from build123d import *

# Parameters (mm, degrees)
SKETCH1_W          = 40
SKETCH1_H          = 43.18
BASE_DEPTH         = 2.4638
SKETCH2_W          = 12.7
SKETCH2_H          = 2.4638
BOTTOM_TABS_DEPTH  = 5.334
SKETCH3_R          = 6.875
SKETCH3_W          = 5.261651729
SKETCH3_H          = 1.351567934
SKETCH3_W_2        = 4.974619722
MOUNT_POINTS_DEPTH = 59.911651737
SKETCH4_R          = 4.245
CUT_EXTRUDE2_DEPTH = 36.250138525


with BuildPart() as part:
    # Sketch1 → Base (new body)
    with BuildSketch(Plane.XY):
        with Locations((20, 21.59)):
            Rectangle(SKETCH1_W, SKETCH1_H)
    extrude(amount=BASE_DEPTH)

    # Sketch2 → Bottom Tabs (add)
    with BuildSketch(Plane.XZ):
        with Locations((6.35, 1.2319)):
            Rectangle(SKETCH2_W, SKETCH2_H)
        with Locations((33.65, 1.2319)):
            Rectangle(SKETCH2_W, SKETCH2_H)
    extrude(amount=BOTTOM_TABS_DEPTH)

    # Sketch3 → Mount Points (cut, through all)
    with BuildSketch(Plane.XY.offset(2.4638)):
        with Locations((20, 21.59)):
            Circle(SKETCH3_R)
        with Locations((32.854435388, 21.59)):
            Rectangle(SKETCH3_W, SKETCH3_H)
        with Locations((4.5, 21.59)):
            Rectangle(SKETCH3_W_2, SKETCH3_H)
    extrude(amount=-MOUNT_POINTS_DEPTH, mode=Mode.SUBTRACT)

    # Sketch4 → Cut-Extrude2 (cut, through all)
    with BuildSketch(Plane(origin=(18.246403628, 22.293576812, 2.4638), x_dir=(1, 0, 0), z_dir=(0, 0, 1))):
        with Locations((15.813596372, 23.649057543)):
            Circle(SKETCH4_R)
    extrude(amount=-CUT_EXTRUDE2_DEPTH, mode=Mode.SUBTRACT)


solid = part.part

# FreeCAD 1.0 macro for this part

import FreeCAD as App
import Part
import Sketcher

V = App.Vector
Q = App.Units.Quantity


def add_polygon(sketch, points):
    """Adds a closed chain of lines whose ends are joined by coincident constraints."""
    first, n = sketch.GeometryCount, len(points)
    for a, b in zip(points, points[1:] + points[:1]):
        sketch.addGeometry(Part.LineSegment(App.Vector(*a, 0), App.Vector(*b, 0)), False)
    for i in range(n):
        sketch.addConstraint(Sketcher.Constraint("Coincident", first + i, 2, first + (i + 1) % n, 1))

doc = App.newDocument("Part")
body = doc.addObject("PartDesign::Body", "Body")

sketch1 = doc.addObject("Sketcher::SketchObject", "Sketch")
body.addObject(sketch1)
sketch1.AttachmentSupport = (doc.XY_Plane, [""])
sketch1.MapMode = "FlatFace"
add_polygon(sketch1, [(0, 43), (0, 0), (40, 0), (40, 43)])
sketch1.addConstraint(Sketcher.Constraint("Vertical", 0))
sketch1.addConstraint(Sketcher.Constraint("Horizontal", 1))
sketch1.addConstraint(Sketcher.Constraint("Vertical", 2))
sketch1.addConstraint(Sketcher.Constraint("Horizontal", 3))
sketch1.addConstraint(Sketcher.Constraint("Coincident", 0, 2, -1, 1))
sketch1.addConstraint(Sketcher.Constraint("DistanceY", 0, 2, 0, 1, Q("1.7 in")))
sketch1.addConstraint(Sketcher.Constraint("DistanceX", 1, 1, 1, 2, Q("40 mm")))
pad1 = doc.addObject("PartDesign::Pad", "Pad")
body.addObject(pad1)
pad1.Profile = sketch1
pad1.Length = Q("0.097 in")

sketch2 = doc.addObject("Sketcher::SketchObject", "Sketch001")
body.addObject(sketch2)
sketch2.AttachmentSupport = (doc.XZ_Plane, [""])
sketch2.MapMode = "FlatFace"
add_polygon(sketch2, [(0, 2.5), (0, 0), (12.7, 0), (12.7, 2.5)])
add_polygon(sketch2, [(27.3, 2.5), (27.3, 0), (40, 0), (40, 2.5)])
sketch2.addConstraint(Sketcher.Constraint("Vertical", 0))
sketch2.addConstraint(Sketcher.Constraint("Horizontal", 1))
sketch2.addConstraint(Sketcher.Constraint("Vertical", 2))
sketch2.addConstraint(Sketcher.Constraint("Horizontal", 3))
sketch2.addConstraint(Sketcher.Constraint("Vertical", 4))
sketch2.addConstraint(Sketcher.Constraint("Horizontal", 5))
sketch2.addConstraint(Sketcher.Constraint("Vertical", 6))
sketch2.addConstraint(Sketcher.Constraint("Horizontal", 7))
sketch2.addConstraint(Sketcher.Constraint("Coincident", 0, 2, -1, 1))
sketch2.addConstraint(Sketcher.Constraint("PointOnObject", 4, 2, -1))
sketch2.addConstraint(Sketcher.Constraint("Horizontal", 3, 2, 6, 2))
sketch2.addConstraint(Sketcher.Constraint("Equal", 3, 5))
sketch2.addConstraint(Sketcher.Constraint("DistanceX", 1, 1, 1, 2, Q("0.5 in")))
sketch2.addConstraint(Sketcher.Constraint("DistanceY", 0, 2, 0, 1, Q("0.097 in")))
sketch2.addConstraint(Sketcher.Constraint("DistanceX", -1, 1, 4, 2, Q("27.3 mm")))
pad2 = doc.addObject("PartDesign::Pad", "Pad001")
body.addObject(pad2)
pad2.Profile = sketch2
pad2.Length = Q("0.21 in")

sketch3 = doc.addObject("Sketcher::SketchObject", "Sketch002")
body.addObject(sketch3)
sketch3.AttachmentSupport = (doc.XY_Plane, [""])
sketch3.MapMode = "FlatFace"
sketch3.AttachmentOffset = App.Placement(V(0, 0, 0.097 * 25.4), App.Rotation())
sketch3.addGeometry(Part.Circle(V(20, 21.6, 0), V(0, 0, 1), 6.9), False)
add_polygon(sketch3, [(30.2, 22.3), (30.2, 20.9), (35.5, 20.9), (35.5, 22.3)])
add_polygon(sketch3, [(2, 22.3), (2, 20.9), (7, 20.9), (7, 22.3)])
sketch3.addConstraint(Sketcher.Constraint("Vertical", 1))
sketch3.addConstraint(Sketcher.Constraint("Horizontal", 2))
sketch3.addConstraint(Sketcher.Constraint("Vertical", 3))
sketch3.addConstraint(Sketcher.Constraint("Horizontal", 4))
sketch3.addConstraint(Sketcher.Constraint("Vertical", 5))
sketch3.addConstraint(Sketcher.Constraint("Horizontal", 6))
sketch3.addConstraint(Sketcher.Constraint("Vertical", 7))
sketch3.addConstraint(Sketcher.Constraint("Horizontal", 8))
sketch3.addConstraint(Sketcher.Constraint("Horizontal", 2, 2, 5, 2))
sketch3.addConstraint(Sketcher.Constraint("Horizontal", 4, 2, 7, 2))
sketch3.addConstraint(Sketcher.Constraint("Diameter", 0, Q("13.75 mm")))
sketch3.addConstraint(Sketcher.Constraint("DistanceY", -1, 1, 0, 3, Q("0.85 in")))
sketch3.addConstraint(Sketcher.Constraint("DistanceX", 2, 1, 2, 2, Q("5.261652 mm")))
sketch3.addConstraint(Sketcher.Constraint("DistanceX", 6, 1, 6, 2, Q("4.97462 mm")))
sketch3.addConstraint(Sketcher.Constraint("DistanceX", -1, 1, 0, 3, Q("20 mm")))
sketch3.addConstraint(Sketcher.Constraint("DistanceX", 6, 2, 1, 2, Q("23.2363 mm")))
sketch3.addConstraint(Sketcher.Constraint("DistanceY", 1, 2, 1, 1, Q("1.351568 mm")))
sketch3.addConstraint(Sketcher.Constraint("DistanceX", -1, 1, 1, 2, Q("30.22361 mm")))
sketch3.addConstraint(Sketcher.Constraint("DistanceY", -1, 1, 1, 2, Q("20.914216 mm")))
pocket1 = doc.addObject("PartDesign::Pocket", "Pocket")
body.addObject(pocket1)
pocket1.Profile = sketch3
pocket1.Type = "ThroughAll"

sketch4 = doc.addObject("Sketcher::SketchObject", "Sketch003")
body.addObject(sketch4)
sketch4.AttachmentSupport = (doc.XY_Plane, [""])
sketch4.MapMode = "FlatFace"
sketch4.AttachmentOffset = App.Placement(V(0, 0, 0.097 * 25.4), App.Rotation())
sketch4.addGeometry(Part.Circle(V(34.1, 45.9, 0), V(0, 0, 1), 4.2), False)
sketch4.addConstraint(Sketcher.Constraint("Diameter", 0, Q("8.49 mm")))
sketch4.addConstraint(Sketcher.Constraint("DistanceX", -1, 1, 0, 3, Q("34.06 mm")))
sketch4.addConstraint(Sketcher.Constraint("DistanceY", -1, 1, 0, 3, Q("45.942634 mm")))
pocket2 = doc.addObject("PartDesign::Pocket", "Pocket001")
body.addObject(pocket2)
pocket2.Profile = sketch4
pocket2.Type = "ThroughAll"

doc.recompute()
